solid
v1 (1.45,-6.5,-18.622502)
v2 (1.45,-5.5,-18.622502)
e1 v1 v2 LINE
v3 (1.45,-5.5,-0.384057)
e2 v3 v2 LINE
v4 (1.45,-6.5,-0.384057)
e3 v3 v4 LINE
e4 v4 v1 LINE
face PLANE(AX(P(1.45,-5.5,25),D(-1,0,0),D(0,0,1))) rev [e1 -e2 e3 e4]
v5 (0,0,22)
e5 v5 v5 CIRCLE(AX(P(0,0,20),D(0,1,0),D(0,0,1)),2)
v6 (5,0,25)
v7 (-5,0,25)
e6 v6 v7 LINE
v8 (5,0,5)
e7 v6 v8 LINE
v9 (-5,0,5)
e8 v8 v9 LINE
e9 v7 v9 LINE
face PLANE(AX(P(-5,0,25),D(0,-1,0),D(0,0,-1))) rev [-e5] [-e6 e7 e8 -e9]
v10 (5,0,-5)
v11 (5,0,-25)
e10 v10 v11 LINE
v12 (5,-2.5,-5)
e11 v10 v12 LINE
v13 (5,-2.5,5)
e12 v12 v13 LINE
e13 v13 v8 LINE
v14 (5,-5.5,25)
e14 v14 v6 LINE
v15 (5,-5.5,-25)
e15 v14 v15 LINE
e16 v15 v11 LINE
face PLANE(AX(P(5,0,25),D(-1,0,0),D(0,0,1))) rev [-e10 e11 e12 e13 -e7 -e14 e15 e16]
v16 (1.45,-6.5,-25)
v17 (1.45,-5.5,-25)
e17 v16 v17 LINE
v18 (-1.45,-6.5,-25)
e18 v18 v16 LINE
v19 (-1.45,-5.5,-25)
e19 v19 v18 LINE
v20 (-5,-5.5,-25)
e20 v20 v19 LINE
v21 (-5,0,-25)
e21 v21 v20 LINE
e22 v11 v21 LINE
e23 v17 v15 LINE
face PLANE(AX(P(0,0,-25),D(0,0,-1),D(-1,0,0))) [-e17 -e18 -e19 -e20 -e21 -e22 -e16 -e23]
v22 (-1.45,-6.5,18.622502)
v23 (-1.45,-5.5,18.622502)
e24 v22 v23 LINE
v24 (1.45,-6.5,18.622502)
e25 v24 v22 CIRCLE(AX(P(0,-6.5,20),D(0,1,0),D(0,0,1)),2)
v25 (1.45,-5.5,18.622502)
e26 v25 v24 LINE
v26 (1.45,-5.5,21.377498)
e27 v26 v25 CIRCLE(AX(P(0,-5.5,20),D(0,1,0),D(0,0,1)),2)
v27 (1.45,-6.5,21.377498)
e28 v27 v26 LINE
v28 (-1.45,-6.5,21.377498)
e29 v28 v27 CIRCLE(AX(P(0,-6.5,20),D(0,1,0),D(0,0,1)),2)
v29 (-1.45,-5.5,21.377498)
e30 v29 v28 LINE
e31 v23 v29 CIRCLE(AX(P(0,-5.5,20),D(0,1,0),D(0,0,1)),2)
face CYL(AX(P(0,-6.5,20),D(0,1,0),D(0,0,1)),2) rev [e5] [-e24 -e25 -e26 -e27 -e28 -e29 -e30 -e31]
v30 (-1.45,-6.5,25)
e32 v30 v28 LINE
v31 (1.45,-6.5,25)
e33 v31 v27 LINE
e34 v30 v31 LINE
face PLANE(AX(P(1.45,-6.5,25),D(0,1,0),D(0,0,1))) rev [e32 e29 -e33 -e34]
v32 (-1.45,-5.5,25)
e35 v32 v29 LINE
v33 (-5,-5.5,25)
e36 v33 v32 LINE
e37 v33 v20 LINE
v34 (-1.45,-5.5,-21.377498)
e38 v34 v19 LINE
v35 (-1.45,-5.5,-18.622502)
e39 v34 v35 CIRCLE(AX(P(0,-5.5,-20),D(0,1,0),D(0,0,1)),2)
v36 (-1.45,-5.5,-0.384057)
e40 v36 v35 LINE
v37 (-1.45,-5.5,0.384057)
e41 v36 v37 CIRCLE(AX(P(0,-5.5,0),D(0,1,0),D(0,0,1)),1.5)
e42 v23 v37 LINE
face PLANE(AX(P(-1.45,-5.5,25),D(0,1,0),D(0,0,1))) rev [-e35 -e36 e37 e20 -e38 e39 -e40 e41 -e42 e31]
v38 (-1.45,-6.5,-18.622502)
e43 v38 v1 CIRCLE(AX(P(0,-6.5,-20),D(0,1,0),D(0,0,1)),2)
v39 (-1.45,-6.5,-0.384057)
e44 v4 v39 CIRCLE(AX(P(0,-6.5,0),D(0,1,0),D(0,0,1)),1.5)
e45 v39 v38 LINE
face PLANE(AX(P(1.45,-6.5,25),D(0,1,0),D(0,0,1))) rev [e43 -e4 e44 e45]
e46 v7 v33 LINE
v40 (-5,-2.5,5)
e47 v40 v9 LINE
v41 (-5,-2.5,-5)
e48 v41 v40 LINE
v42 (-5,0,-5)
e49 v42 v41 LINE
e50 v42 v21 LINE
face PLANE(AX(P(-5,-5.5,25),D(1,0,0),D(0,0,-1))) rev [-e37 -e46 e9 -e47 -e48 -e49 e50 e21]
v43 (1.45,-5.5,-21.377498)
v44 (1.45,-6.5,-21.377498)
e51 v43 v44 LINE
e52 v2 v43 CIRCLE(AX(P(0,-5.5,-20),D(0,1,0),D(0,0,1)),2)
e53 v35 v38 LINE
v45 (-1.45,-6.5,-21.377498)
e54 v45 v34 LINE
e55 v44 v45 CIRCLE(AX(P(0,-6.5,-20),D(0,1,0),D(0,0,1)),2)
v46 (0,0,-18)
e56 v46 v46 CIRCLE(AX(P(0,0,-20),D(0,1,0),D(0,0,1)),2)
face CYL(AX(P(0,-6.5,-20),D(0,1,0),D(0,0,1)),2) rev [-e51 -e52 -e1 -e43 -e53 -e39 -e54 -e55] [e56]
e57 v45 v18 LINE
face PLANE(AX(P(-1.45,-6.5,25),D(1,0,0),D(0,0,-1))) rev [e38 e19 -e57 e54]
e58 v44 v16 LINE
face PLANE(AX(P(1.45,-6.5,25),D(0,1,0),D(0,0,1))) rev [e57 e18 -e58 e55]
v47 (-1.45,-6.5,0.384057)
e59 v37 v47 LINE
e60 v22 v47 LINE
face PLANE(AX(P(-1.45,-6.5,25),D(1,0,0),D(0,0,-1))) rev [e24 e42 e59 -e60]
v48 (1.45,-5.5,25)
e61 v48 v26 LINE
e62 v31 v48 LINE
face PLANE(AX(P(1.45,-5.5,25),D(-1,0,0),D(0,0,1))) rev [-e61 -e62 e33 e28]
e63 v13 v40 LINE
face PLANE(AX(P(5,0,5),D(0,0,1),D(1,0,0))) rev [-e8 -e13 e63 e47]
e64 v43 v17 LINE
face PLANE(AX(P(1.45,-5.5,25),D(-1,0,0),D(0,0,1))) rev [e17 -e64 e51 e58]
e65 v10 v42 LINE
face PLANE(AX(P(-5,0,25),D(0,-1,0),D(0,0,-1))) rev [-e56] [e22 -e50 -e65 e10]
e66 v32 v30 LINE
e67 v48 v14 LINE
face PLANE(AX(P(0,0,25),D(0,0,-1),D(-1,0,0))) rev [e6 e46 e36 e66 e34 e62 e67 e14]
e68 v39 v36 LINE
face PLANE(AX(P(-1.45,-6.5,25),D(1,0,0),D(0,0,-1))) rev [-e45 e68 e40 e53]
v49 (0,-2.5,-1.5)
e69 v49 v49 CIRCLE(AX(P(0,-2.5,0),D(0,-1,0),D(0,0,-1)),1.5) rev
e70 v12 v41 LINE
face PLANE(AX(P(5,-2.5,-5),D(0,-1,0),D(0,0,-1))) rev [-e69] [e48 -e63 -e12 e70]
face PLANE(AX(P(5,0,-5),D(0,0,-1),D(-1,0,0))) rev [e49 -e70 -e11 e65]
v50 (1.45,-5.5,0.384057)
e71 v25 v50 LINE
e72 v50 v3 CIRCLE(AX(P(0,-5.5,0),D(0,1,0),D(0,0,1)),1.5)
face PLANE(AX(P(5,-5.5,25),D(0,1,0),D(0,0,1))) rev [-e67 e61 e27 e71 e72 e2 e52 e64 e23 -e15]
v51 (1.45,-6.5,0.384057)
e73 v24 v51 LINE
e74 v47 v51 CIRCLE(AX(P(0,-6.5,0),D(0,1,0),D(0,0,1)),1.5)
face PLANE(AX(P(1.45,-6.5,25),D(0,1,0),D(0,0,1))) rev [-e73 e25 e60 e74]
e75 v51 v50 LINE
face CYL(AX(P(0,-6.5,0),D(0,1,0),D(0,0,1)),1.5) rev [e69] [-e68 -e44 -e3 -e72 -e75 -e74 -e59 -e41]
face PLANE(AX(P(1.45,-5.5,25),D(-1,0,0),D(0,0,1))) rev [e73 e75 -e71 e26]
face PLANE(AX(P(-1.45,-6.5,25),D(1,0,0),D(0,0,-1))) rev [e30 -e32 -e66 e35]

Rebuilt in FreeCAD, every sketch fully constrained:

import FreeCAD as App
import Part
import Sketcher
from FreeCAD import Vector
Q = App.Units.Quantity


def add_polygon(sketch, points):
    """Adds a closed chain of lines whose ends are joined by coincident constraints."""
    first, n = sketch.GeometryCount, len(points)
    for a, b in zip(points, points[1:] + points[:1]):
        sketch.addGeometry(Part.LineSegment(App.Vector(*a, 0), App.Vector(*b, 0)), False)
    for i in range(n):
        sketch.addConstraint(Sketcher.Constraint("Coincident", first + i, 2, first + (i + 1) % n, 1))

doc = App.newDocument("Part")
body = doc.addObject("PartDesign::Body", "Body")

# Sketch on XY plane
sketch1 = doc.addObject("Sketcher::SketchObject", "Sketch")
body.addObject(sketch1)
sketch1.AttachmentSupport = (doc.XY_Plane, [""])
sketch1.MapMode = "FlatFace"
add_polygon(sketch1, [(5, 0), (-5, 0), (-5, -5.5), (-1.45, -5.5), (-1.45, -6.5), (1.45, -6.5), (1.45, -5.5), (5, -5.5)])  # lines 0-7
sketch1.addConstraint([
    Sketcher.Constraint("Horizontal", 0),
    Sketcher.Constraint("Vertical", 1),
    Sketcher.Constraint("Horizontal", 2),
    Sketcher.Constraint("Vertical", 3),
    Sketcher.Constraint("Horizontal", 4),
    Sketcher.Constraint("Vertical", 5),
    Sketcher.Constraint("Horizontal", 6),
    Sketcher.Constraint("Vertical", 7),
    Sketcher.Constraint("Symmetric", 0, 2, 7, 2, -1, 1),
    Sketcher.Constraint("Symmetric", 2, 2, 5, 2, -2),
    Sketcher.Constraint("DistanceX", 0, 2, 0, 1, Q("10 mm")),
    Sketcher.Constraint("DistanceY", 3, 2, 3, 1, Q("1 mm")),
    Sketcher.Constraint("DistanceX", 4, 1, 4, 2, Q("2.9 mm")),
    Sketcher.Constraint("DistanceY", 1, 2, 1, 1, Q("5.5 mm")),
])
pad1 = doc.addObject("PartDesign::Pad", "Pad")
body.addObject(pad1)
pad1.Profile = sketch1
pad1.Length = 50
pad1.Midplane = True

# Sketch on XZ plane
sketch2 = doc.addObject("Sketcher::SketchObject", "Sketch001")
body.addObject(sketch2)
sketch2.AttachmentSupport = (doc.XZ_Plane, [""])
sketch2.MapMode = "FlatFace"
sketch2.addGeometry([
    Part.Circle(Vector(0, -20, 0), Vector(0, 0, 1), 2),
    Part.Circle(Vector(0, 20, 0), Vector(0, 0, 1), 2),
    Part.Circle(Vector(0, 0, 0), Vector(0, 0, 1), 1.5),
], False)
sketch2.addConstraint([
    Sketcher.Constraint("Coincident", 2, 3, -1, 1),
    Sketcher.Constraint("Equal", 0, 1),
    Sketcher.Constraint("Symmetric", 0, 3, 1, 3, -1, 1),
    Sketcher.Constraint("PointOnObject", 0, 3, -2),
    Sketcher.Constraint("Diameter", 0, Q("4 mm")),
    Sketcher.Constraint("Diameter", 2, Q("3 mm")),
    Sketcher.Constraint("DistanceY", 0, 3, -1, 1, Q("20 mm")),
])
pocket1 = doc.addObject("PartDesign::Pocket", "Pocket")
body.addObject(pocket1)
pocket1.Profile = sketch2
pocket1.Type = "ThroughAll"
pocket1.Reversed = True

# Sketch on YZ plane
sketch3 = doc.addObject("Sketcher::SketchObject", "Sketch002")
body.addObject(sketch3)
sketch3.AttachmentSupport = (doc.YZ_Plane, [""])
sketch3.MapMode = "FlatFace"
sketch3.AttachmentOffset = App.Placement(Vector(0, 0, -5), App.Rotation())
add_polygon(sketch3, [(0, -5), (-2.5, -5), (-2.5, 5), (0, 5)])  # lines 0-3
sketch3.addConstraint([
    Sketcher.Constraint("Horizontal", 0),
    Sketcher.Constraint("Vertical", 1),
    Sketcher.Constraint("Horizontal", 2),
    Sketcher.Constraint("Vertical", 3),
    Sketcher.Constraint("Symmetric", 2, 2, 3, 2, -1, 1),
    Sketcher.Constraint("DistanceY", 1, 1, 1, 2, Q("10 mm")),
    Sketcher.Constraint("DistanceX", 0, 2, 0, 1, Q("2.5 mm")),
])
pocket2 = doc.addObject("PartDesign::Pocket", "Pocket001")
body.addObject(pocket2)
pocket2.Profile = sketch3
pocket2.Type = "ThroughAll"
pocket2.Reversed = True

doc.recompute()
